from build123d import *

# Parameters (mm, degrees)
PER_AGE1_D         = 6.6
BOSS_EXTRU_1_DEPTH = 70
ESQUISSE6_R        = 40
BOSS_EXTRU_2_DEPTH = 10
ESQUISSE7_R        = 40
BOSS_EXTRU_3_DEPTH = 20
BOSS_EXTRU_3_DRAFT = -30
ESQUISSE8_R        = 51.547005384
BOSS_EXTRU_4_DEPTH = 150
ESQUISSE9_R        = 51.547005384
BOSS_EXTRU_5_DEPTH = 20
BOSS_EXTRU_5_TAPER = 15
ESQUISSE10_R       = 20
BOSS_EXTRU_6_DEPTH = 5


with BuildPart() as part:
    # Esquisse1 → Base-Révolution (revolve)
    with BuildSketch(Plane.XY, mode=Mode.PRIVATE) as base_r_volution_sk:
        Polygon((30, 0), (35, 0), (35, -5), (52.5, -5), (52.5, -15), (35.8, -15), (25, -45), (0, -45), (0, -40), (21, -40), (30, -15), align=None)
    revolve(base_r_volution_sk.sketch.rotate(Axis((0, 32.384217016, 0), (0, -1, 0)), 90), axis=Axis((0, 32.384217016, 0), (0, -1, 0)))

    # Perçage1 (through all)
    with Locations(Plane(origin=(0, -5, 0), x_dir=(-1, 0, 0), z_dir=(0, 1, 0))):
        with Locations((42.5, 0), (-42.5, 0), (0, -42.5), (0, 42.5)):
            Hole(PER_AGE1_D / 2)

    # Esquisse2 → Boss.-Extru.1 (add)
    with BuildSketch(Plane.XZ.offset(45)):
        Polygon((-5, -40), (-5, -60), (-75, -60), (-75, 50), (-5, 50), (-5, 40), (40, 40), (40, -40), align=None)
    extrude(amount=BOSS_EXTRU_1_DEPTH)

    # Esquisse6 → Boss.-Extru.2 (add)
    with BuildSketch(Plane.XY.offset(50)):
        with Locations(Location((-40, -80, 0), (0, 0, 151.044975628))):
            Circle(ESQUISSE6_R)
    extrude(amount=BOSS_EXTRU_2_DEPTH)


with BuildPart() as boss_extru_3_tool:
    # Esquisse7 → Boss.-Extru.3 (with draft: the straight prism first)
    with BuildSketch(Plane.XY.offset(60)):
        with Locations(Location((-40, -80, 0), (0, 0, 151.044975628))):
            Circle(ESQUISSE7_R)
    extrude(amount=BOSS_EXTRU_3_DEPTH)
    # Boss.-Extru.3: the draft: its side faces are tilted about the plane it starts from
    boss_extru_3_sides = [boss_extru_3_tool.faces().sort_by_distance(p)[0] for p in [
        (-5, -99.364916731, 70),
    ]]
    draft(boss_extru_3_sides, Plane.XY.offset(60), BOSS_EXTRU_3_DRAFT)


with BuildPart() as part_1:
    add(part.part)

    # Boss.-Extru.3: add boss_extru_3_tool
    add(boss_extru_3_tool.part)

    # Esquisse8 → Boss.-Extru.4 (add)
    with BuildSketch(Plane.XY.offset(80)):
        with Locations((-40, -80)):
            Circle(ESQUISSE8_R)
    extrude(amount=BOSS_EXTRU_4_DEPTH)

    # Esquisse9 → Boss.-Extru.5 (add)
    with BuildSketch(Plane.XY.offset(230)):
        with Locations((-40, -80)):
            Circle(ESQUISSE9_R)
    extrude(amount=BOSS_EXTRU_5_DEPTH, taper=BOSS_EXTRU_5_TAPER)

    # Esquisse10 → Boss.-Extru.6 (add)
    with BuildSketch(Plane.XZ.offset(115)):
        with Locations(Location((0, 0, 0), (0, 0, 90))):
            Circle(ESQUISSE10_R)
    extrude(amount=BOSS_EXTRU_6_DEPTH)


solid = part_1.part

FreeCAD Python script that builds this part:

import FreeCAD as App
import Part
import Sketcher


def faces_at(feature, points):
    """Names of the faces that lie closest to the given points."""
    faces = feature.Shape.Faces
    near = lambda p: min(range(len(faces)), key=lambda i: faces[i].distToShape(Part.Vertex(*p))[0])
    return sorted({f"Face{near(p) + 1}" for p in points})

doc = App.newDocument("Part")
params = doc.addObject("Spreadsheet::Sheet", "Params")
for row, (alias, value) in enumerate([
    ("sketch1_width", "5 mm"),
    ("sketch1_width2", "21 mm"),
    ("sketch1_width3", "25 mm"),
    ("sketch1_height", "15 mm"),
    ("sketch1_width4", "16.7 mm"),
    ("revolution_angle", "360 deg"),
    ("sketch2_diameter", "6.6 mm"),
    ("hole_diameter", "6.6 mm"),
    ("sketch3_width", "45 mm"),
    ("sketch3_width2", "70 mm"),
    ("sketch3_height", "20 mm"),
    ("sketch3_height2", "80 mm"),
    ("sketch3_height3", "10 mm"),
    ("pad1_length", "70 mm"),
    ("sketch4_diameter", "80 mm"),
    ("pad2_length", "10 mm"),
    ("sketch5_diameter", "80 mm"),
    ("pad3_length", "20 mm"),
    ("draft_angle", "30 deg"),
    ("pad4_length", "150 mm"),
    ("pad5_length", "20 mm"),
    ("pad5_taper", "-15 deg"),
    ("sketch8_diameter", "40 mm"),
    ("pad6_length", "5 mm"),
], start=1):
    params.set(f"A{row}", alias)
    params.set(f"B{row}", "=" + value)
    params.setAlias(f"B{row}", alias)

body = doc.addObject("PartDesign::Body", "Body")

# Sketch on XY plane
sketch1 = body.newObject("Sketcher::SketchObject", "Sketch")
sketch1.AttachmentSupport = (doc.getObject("XY_Plane"), [""])
sketch1.MapMode = "FlatFace"
sketch1.addGeometry([
    Part.LineSegment(App.Vector(35, 0, 0), App.Vector(30, 0, 0)),  # 0
    Part.LineSegment(App.Vector(30, 0, 0), App.Vector(30, -15, 0)),  # 1
    Part.LineSegment(App.Vector(30, -15, 0), App.Vector(21, -40, 0)),  # 2
    Part.LineSegment(App.Vector(21, -40, 0), App.Vector(0, -40, 0)),  # 3
    Part.LineSegment(App.Vector(0, -40, 0), App.Vector(0, -45, 0)),  # 4
    Part.LineSegment(App.Vector(0, -45, 0), App.Vector(25, -45, 0)),  # 5
    Part.LineSegment(App.Vector(25, -45, 0), App.Vector(36, -15, 0)),  # 6
    Part.LineSegment(App.Vector(36, -15, 0), App.Vector(52, -15, 0)),  # 7
    Part.LineSegment(App.Vector(52, -15, 0), App.Vector(52, -5, 0)),  # 8
    Part.LineSegment(App.Vector(52, -5, 0), App.Vector(35, -5, 0)),  # 9
    Part.LineSegment(App.Vector(35, -5, 0), App.Vector(35, 0, 0)),  # 10
], False)
sketch1.addConstraint([
    Sketcher.Constraint("Coincident", 0, 2, 1, 1),
    Sketcher.Constraint("Coincident", 1, 2, 2, 1),
    Sketcher.Constraint("Coincident", 2, 2, 3, 1),
    Sketcher.Constraint("Coincident", 3, 2, 4, 1),
    Sketcher.Constraint("Coincident", 4, 2, 5, 1),
    Sketcher.Constraint("Coincident", 5, 2, 6, 1),
    Sketcher.Constraint("Coincident", 6, 2, 7, 1),
    Sketcher.Constraint("Coincident", 7, 2, 8, 1),
    Sketcher.Constraint("Coincident", 8, 2, 9, 1),
    Sketcher.Constraint("Coincident", 9, 2, 10, 1),
    Sketcher.Constraint("Coincident", 10, 2, 0, 1),
    Sketcher.Constraint("Horizontal", 0),
    Sketcher.Constraint("Vertical", 1),
    Sketcher.Constraint("Horizontal", 3),
    Sketcher.Constraint("Vertical", 4),
    Sketcher.Constraint("Horizontal", 5),
    Sketcher.Constraint("Horizontal", 7),
    Sketcher.Constraint("Vertical", 8),
    Sketcher.Constraint("Horizontal", 9),
    Sketcher.Constraint("Vertical", 10),
    Sketcher.Constraint("PointOnObject", 0, 2, -1),
    Sketcher.Constraint("PointOnObject", 3, 2, -2),
    Sketcher.Constraint("Parallel", 2, 6),
    Sketcher.Constraint("Horizontal", 1, 2, 6, 2),
    Sketcher.Constraint("Equal", 0, 4),
    Sketcher.Constraint("Equal", 4, 10),
    Sketcher.Constraint("DistanceX", 0, 2, 0, 1, 5.0),
    Sketcher.Constraint("DistanceX", 3, 2, 3, 1, 21.0),
    Sketcher.Constraint("DistanceX", 5, 1, 5, 2, 25.0),
    Sketcher.Constraint("DistanceY", 1, 2, 1, 1, 15.0),
    Sketcher.Constraint("DistanceX", 7, 1, 7, 2, 16.7),
    Sketcher.Constraint("DistanceX", 9, 2, 9, 1, 17.5),
    Sketcher.Constraint("DistanceX", -1, 1, 0, 2, 30.0),
])
sketch1.setExpression("Constraints[26]", "Params.sketch1_width")
sketch1.setExpression("Constraints[27]", "Params.sketch1_width2")
sketch1.setExpression("Constraints[28]", "Params.sketch1_width3")
sketch1.setExpression("Constraints[29]", "Params.sketch1_height")
sketch1.setExpression("Constraints[30]", "Params.sketch1_width4")
revolution = body.newObject("PartDesign::Revolution", "Revolution")
revolution.Profile = sketch1
revolution.ReferenceAxis = (sketch1, ["V_Axis"])
revolution.setExpression("Angle", "Params.revolution_angle")

# Sketch on XZ plane
sketch2 = body.newObject("Sketcher::SketchObject", "Sketch001")
sketch2.AttachmentSupport = (doc.getObject("XZ_Plane"), [""])
sketch2.MapMode = "FlatFace"
sketch2.AttachmentOffset = App.Placement(App.Vector(0, 0, 5), App.Rotation())
sketch2.addGeometry([
    Part.Circle(App.Vector(-42.5, 0, 0), App.Vector(0, 0, 1), 3.3),
    Part.Circle(App.Vector(42.5, 0, 0), App.Vector(0, 0, 1), 3.3),
    Part.Circle(App.Vector(0, -42.5, 0), App.Vector(0, 0, 1), 3.3),
    Part.Circle(App.Vector(0, 42.5, 0), App.Vector(0, 0, 1), 3.3),
], False)
sketch2.addConstraint([
    Sketcher.Constraint("Equal", 0, 1),
    Sketcher.Constraint("Equal", 1, 2),
    Sketcher.Constraint("Equal", 2, 3),
    Sketcher.Constraint("Symmetric", 0, 3, 1, 3, -1, 1),
    Sketcher.Constraint("Symmetric", 2, 3, 3, 3, -1, 1),
    Sketcher.Constraint("PointOnObject", 0, 3, -1),
    Sketcher.Constraint("PointOnObject", 2, 3, -2),
    Sketcher.Constraint("Diameter", 0, 6.6),
    Sketcher.Constraint("DistanceX", 0, 3, 1, 3, 85.0),
    Sketcher.Constraint("DistanceY", 2, 3, 3, 3, 85.0),
])
sketch2.setExpression("Constraints[7]", "Params.sketch2_diameter")
doc.recompute()
hole = body.newObject("PartDesign::Hole", "Hole")
hole.Profile = sketch2
hole.ThreadType = "None"
hole.setExpression("Diameter", "Params.hole_diameter")
hole.DepthType = "ThroughAll"
hole.Reversed = True

# Sketch on XZ plane
sketch3 = body.newObject("Sketcher::SketchObject", "Sketch002")
sketch3.AttachmentSupport = (doc.getObject("XZ_Plane"), [""])
sketch3.MapMode = "FlatFace"
sketch3.AttachmentOffset = App.Placement(App.Vector(0, 0, 45), App.Rotation())
sketch3.addGeometry([
    Part.LineSegment(App.Vector(-5, -60, 0), App.Vector(-5, -40, 0)),  # 0
    Part.LineSegment(App.Vector(-5, -40, 0), App.Vector(40, -40, 0)),  # 1
    Part.LineSegment(App.Vector(40, -40, 0), App.Vector(40, 40, 0)),  # 2
    Part.LineSegment(App.Vector(40, 40, 0), App.Vector(-5, 40, 0)),  # 3
    Part.LineSegment(App.Vector(-5, 40, 0), App.Vector(-5, 50, 0)),  # 4
    Part.LineSegment(App.Vector(-5, 50, 0), App.Vector(-75, 50, 0)),  # 5
    Part.LineSegment(App.Vector(-75, 50, 0), App.Vector(-75, -60, 0)),  # 6
    Part.LineSegment(App.Vector(-75, -60, 0), App.Vector(-5, -60, 0)),  # 7
], False)
sketch3.addConstraint([
    Sketcher.Constraint("Coincident", 0, 2, 1, 1),
    Sketcher.Constraint("Coincident", 1, 2, 2, 1),
    Sketcher.Constraint("Coincident", 2, 2, 3, 1),
    Sketcher.Constraint("Coincident", 3, 2, 4, 1),
    Sketcher.Constraint("Coincident", 4, 2, 5, 1),
    Sketcher.Constraint("Coincident", 5, 2, 6, 1),
    Sketcher.Constraint("Coincident", 6, 2, 7, 1),
    Sketcher.Constraint("Coincident", 7, 2, 0, 1),
    Sketcher.Constraint("Vertical", 0),
    Sketcher.Constraint("Horizontal", 1),
    Sketcher.Constraint("Vertical", 2),
    Sketcher.Constraint("Horizontal", 3),
    Sketcher.Constraint("Vertical", 4),
    Sketcher.Constraint("Horizontal", 5),
    Sketcher.Constraint("Vertical", 6),
    Sketcher.Constraint("Horizontal", 7),
    Sketcher.Constraint("Symmetric", 0, 2, 3, 2, -1),
    Sketcher.Constraint("DistanceX", 1, 1, 1, 2, 45.0),
    Sketcher.Constraint("DistanceX", 5, 2, 5, 1, 70.0),
    Sketcher.Constraint("DistanceY", 0, 1, 0, 2, 20.0),
    Sketcher.Constraint("DistanceY", 2, 1, 2, 2, 80.0),
    Sketcher.Constraint("DistanceY", 4, 1, 4, 2, 10.0),
    Sketcher.Constraint("DistanceX", 0, 2, -1, 1, 5.0),
])
sketch3.setExpression("Constraints[17]", "Params.sketch3_width")
sketch3.setExpression("Constraints[18]", "Params.sketch3_width2")
sketch3.setExpression("Constraints[19]", "Params.sketch3_height")
sketch3.setExpression("Constraints[20]", "Params.sketch3_height2")
sketch3.setExpression("Constraints[21]", "Params.sketch3_height3")
pad1 = body.newObject("PartDesign::Pad", "Pad")
pad1.Profile = sketch3
pad1.setExpression("Length", "Params.pad1_length")

# Sketch on XY plane
sketch4 = body.newObject("Sketcher::SketchObject", "Sketch003")
sketch4.AttachmentSupport = (doc.getObject("XY_Plane"), [""])
sketch4.MapMode = "FlatFace"
sketch4.AttachmentOffset = App.Placement(App.Vector(0, 0, 50), App.Rotation())
sketch4.addGeometry(Part.Circle(App.Vector(-40, -80, 0), App.Vector(0, 0, 1), 40), False)
sketch4.addConstraint([
    Sketcher.Constraint("Diameter", 0, 80.0),
    Sketcher.Constraint("DistanceX", 0, 3, -1, 1, 40.0),
    Sketcher.Constraint("DistanceY", 0, 3, -1, 1, 80.0),
])
sketch4.setExpression("Constraints[0]", "Params.sketch4_diameter")
pad2 = body.newObject("PartDesign::Pad", "Pad001")
pad2.Profile = sketch4
pad2.setExpression("Length", "Params.pad2_length")
body2 = doc.addObject("PartDesign::Body", "Body001")

# Sketch on XY plane
sketch5 = body2.newObject("Sketcher::SketchObject", "Sketch004")
sketch5.AttachmentSupport = (doc.getObject("XY_Plane001"), [""])
sketch5.MapMode = "FlatFace"
sketch5.AttachmentOffset = App.Placement(App.Vector(0, 0, 60), App.Rotation())
sketch5.addGeometry(Part.Circle(App.Vector(-40, -80, 0), App.Vector(0, 0, 1), 40), False)
sketch5.addConstraint([
    Sketcher.Constraint("Diameter", 0, 80.0),
    Sketcher.Constraint("DistanceX", 0, 3, -1, 1, 40.0),
    Sketcher.Constraint("DistanceY", 0, 3, -1, 1, 80.0),
])
sketch5.setExpression("Constraints[0]", "Params.sketch5_diameter")
pad3 = body2.newObject("PartDesign::Pad", "Pad002")
pad3.Profile = sketch5
pad3.setExpression("Length", "Params.pad3_length")
doc.recompute()

datumplane = body2.newObject("PartDesign::Plane", "DatumPlane")
datumplane.AttachmentSupport = (doc.getObject("XY_Plane001"), [""])
datumplane.MapMode = "FlatFace"
datumplane.AttachmentOffset = App.Placement(App.Vector(0, 0, 60), App.Rotation())
draft = body2.newObject("PartDesign::Draft", "Draft")
draft.Base = (pad3, faces_at(pad3, [(-5, -99.365, 70)]))
draft.NeutralPlane = (datumplane, [""])
draft.setExpression("Angle", "Params.draft_angle")
draft.Reversed = True
doc.recompute()

boolean = body.newObject("PartDesign::Boolean", "Boolean")
boolean.Type = "Fuse"
boolean.addObjects([body2])

# Sketch on XY plane
sketch6 = body.newObject("Sketcher::SketchObject", "Sketch005")
sketch6.AttachmentSupport = (doc.getObject("XY_Plane"), [""])
sketch6.MapMode = "FlatFace"
sketch6.AttachmentOffset = App.Placement(App.Vector(0, 0, 80), App.Rotation())
sketch6.addGeometry(Part.Circle(App.Vector(-40, -80, 0), App.Vector(0, 0, 1), 52), False)
sketch6.addConstraint([
    Sketcher.Constraint("DistanceX", 0, 3, -1, 1, 40.0),
    Sketcher.Constraint("DistanceY", 0, 3, -1, 1, 80.0),
    Sketcher.Constraint("Diameter", 0, 103.094011),
])
pad4 = body.newObject("PartDesign::Pad", "Pad003")
pad4.Profile = sketch6
pad4.setExpression("Length", "Params.pad4_length")

# Sketch on XY plane
sketch7 = body.newObject("Sketcher::SketchObject", "Sketch006")
sketch7.AttachmentSupport = (doc.getObject("XY_Plane"), [""])
sketch7.MapMode = "FlatFace"
sketch7.AttachmentOffset = App.Placement(App.Vector(0, 0, 230), App.Rotation())
sketch7.addGeometry(Part.Circle(App.Vector(-40, -80, 0), App.Vector(0, 0, 1), 52), False)
sketch7.addConstraint([
    Sketcher.Constraint("DistanceX", 0, 3, -1, 1, 40.0),
    Sketcher.Constraint("DistanceY", 0, 3, -1, 1, 80.0),
    Sketcher.Constraint("Diameter", 0, 103.094011),
])
pad5 = body.newObject("PartDesign::Pad", "Pad004")
pad5.Profile = sketch7
pad5.setExpression("Length", "Params.pad5_length")
pad5.setExpression("TaperAngle", "Params.pad5_taper")

# Sketch on XZ plane
sketch8 = body.newObject("Sketcher::SketchObject", "Sketch007")
sketch8.AttachmentSupport = (doc.getObject("XZ_Plane"), [""])
sketch8.MapMode = "FlatFace"
sketch8.AttachmentOffset = App.Placement(App.Vector(0, 0, 115), App.Rotation())
sketch8.addGeometry(Part.Circle(App.Vector(0, 0, 0), App.Vector(0, 0, 1), 20), False)
sketch8.addConstraint([
    Sketcher.Constraint("Coincident", 0, 3, -1, 1),
    Sketcher.Constraint("Diameter", 0, 40.0),
])
sketch8.setExpression("Constraints[1]", "Params.sketch8_diameter")
pad6 = body.newObject("PartDesign::Pad", "Pad005")
pad6.Profile = sketch8
pad6.setExpression("Length", "Params.pad6_length")

doc.recompute()
